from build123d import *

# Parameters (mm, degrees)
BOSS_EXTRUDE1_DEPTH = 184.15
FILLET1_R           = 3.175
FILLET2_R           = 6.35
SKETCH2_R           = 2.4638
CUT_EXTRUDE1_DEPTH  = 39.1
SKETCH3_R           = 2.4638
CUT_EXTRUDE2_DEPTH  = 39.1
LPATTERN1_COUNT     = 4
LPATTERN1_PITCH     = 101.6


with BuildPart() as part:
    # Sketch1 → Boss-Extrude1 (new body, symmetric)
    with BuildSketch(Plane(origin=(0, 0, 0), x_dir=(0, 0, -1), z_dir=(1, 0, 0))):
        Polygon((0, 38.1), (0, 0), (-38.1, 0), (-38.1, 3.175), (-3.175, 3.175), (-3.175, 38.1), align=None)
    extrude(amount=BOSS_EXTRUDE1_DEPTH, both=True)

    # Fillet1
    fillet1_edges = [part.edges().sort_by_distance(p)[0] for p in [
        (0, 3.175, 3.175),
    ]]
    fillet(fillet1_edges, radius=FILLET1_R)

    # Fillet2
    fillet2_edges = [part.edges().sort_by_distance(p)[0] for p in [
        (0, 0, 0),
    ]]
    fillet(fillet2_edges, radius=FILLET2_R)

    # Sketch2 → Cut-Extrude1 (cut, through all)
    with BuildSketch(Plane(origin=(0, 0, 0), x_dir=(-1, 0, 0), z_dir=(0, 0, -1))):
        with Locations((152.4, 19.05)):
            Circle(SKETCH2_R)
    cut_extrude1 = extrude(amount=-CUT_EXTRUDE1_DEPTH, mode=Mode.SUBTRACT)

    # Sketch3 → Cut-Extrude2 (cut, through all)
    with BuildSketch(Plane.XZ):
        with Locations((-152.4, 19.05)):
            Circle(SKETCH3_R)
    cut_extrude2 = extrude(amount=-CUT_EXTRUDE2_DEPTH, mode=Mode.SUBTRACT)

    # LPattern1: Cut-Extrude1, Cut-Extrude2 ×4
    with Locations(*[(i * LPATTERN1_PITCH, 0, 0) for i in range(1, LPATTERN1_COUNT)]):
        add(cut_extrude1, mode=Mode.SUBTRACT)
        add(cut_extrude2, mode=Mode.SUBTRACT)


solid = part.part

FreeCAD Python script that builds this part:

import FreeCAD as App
import Part
import Sketcher
Q = App.Units.Quantity


def edges_at(feature, points):
    """Names of the edges that pass closest to the given points."""
    edges = feature.Shape.Edges
    near = lambda p: min(range(len(edges)), key=lambda i: edges[i].distToShape(Part.Vertex(*p))[0])
    return sorted({f"Edge{near(p) + 1}" for p in points})

doc = App.newDocument("Part")
params = doc.addObject("Spreadsheet::Sheet", "Params")
for row, (alias, value) in enumerate([
    ("sketch1_width", "1.5 in"),
    ("sketch1_width2", "1.375 in"),
    ("pad1_length", "14.5 in"),
    ("fillet_radius", "0.125 in"),
    ("fillet2_radius", "0.25 in"),
    ("sketch2_diameter", "0.194 in"),
    ("sketch3_diameter", "0.194 in"),
    ("linearpattern_pitch", "4 in"),
], start=1):
    params.set(f"A{row}", alias)
    params.set(f"B{row}", "=" + value)
    params.setAlias(f"B{row}", alias)

body = doc.addObject("PartDesign::Body", "Body")

sketch1 = body.newObject("Sketcher::SketchObject", "Sketch")
sketch1.AttachmentSupport = (doc.getObject("YZ_Plane"), [""])
sketch1.MapMode = "FlatFace"
sketch1.addGeometry([
    Part.LineSegment(App.Vector(0, 0, 0), App.Vector(38.1, 0, 0)),
    Part.LineSegment(App.Vector(38.1, 0, 0), App.Vector(38.1, 3.2, 0)),
    Part.LineSegment(App.Vector(38.1, 3.2, 0), App.Vector(3.2, 3.2, 0)),
    Part.LineSegment(App.Vector(3.2, 3.2, 0), App.Vector(3.2, 38.1, 0)),
    Part.LineSegment(App.Vector(3.2, 38.1, 0), App.Vector(0, 38.1, 0)),
    Part.LineSegment(App.Vector(0, 38.1, 0), App.Vector(0, 0, 0)),
], False)
sketch1.addConstraint([
    Sketcher.Constraint("Coincident", 0, 2, 1, 1),
    Sketcher.Constraint("Coincident", 1, 2, 2, 1),
    Sketcher.Constraint("Coincident", 2, 2, 3, 1),
    Sketcher.Constraint("Coincident", 3, 2, 4, 1),
    Sketcher.Constraint("Coincident", 4, 2, 5, 1),
    Sketcher.Constraint("Coincident", 5, 2, 0, 1),
    Sketcher.Constraint("Horizontal", 0),
    Sketcher.Constraint("Vertical", 1),
    Sketcher.Constraint("Horizontal", 2),
    Sketcher.Constraint("Vertical", 3),
    Sketcher.Constraint("Horizontal", 4),
    Sketcher.Constraint("Vertical", 5),
    Sketcher.Constraint("Coincident", 5, 2, -1, 1),
    Sketcher.Constraint("Equal", 4, 1),
    Sketcher.Constraint("Equal", 2, 3),
    Sketcher.Constraint("DistanceX", 0, 1, 0, 2, Q("1.5 in")),
    Sketcher.Constraint("DistanceX", 2, 2, 2, 1, Q("1.375 in")),
])
sketch1.setExpression("Constraints[15]", "Params.sketch1_width")
sketch1.setExpression("Constraints[16]", "Params.sketch1_width2")
pad1 = body.newObject("PartDesign::Pad", "Pad")
pad1.Profile = sketch1
pad1.setExpression("Length", "Params.pad1_length")
pad1.Midplane = True
doc.recompute()

fillet = body.newObject("PartDesign::Fillet", "Fillet")
fillet.Base = (pad1, edges_at(pad1, [(0, 3.175, 3.175)]))
fillet.setExpression("Radius", "Params.fillet_radius")
doc.recompute()

fillet2 = body.newObject("PartDesign::Fillet", "Fillet001")
fillet2.Base = (fillet, edges_at(fillet, [(0, 0, 0)]))
fillet2.setExpression("Radius", "Params.fillet2_radius")

sketch2 = body.newObject("Sketcher::SketchObject", "Sketch001")
sketch2.AttachmentSupport = (doc.getObject("XY_Plane"), [""])
sketch2.MapMode = "FlatFace"
sketch2.addGeometry(Part.Circle(App.Vector(-152.4, 19.1, 0), App.Vector(0, 0, 1), 2.5), False)
sketch2.addConstraint([
    Sketcher.Constraint("Diameter", 0, Q("0.194 in")),
    Sketcher.Constraint("DistanceX", 0, 3, -1, 1, Q("6 in")),
    Sketcher.Constraint("DistanceY", -1, 1, 0, 3, Q("0.75 in")),
])
sketch2.setExpression("Constraints[0]", "Params.sketch2_diameter")
pocket1 = body.newObject("PartDesign::Pocket", "Pocket")
pocket1.Profile = sketch2
pocket1.Type = "ThroughAll"
pocket1.Reversed = True

sketch3 = body.newObject("Sketcher::SketchObject", "Sketch002")
sketch3.AttachmentSupport = (doc.getObject("XZ_Plane"), [""])
sketch3.MapMode = "FlatFace"
sketch3.addGeometry(Part.Circle(App.Vector(-152.4, 19.1, 0), App.Vector(0, 0, 1), 2.5), False)
sketch3.addConstraint([
    Sketcher.Constraint("Diameter", 0, Q("0.194 in")),
    Sketcher.Constraint("DistanceX", 0, 3, -1, 1, Q("6 in")),
    Sketcher.Constraint("DistanceY", -1, 1, 0, 3, Q("0.75 in")),
])
sketch3.setExpression("Constraints[0]", "Params.sketch3_diameter")
pocket2 = body.newObject("PartDesign::Pocket", "Pocket001")
pocket2.Profile = sketch3
pocket2.Type = "ThroughAll"
doc.recompute()

linearpattern = body.newObject("PartDesign::LinearPattern", "LinearPattern")
linearpattern.Originals = [pocket1, pocket2]
linearpattern.Direction = (doc.getObject("X_Axis"), [""])
linearpattern.Mode = "offset"
linearpattern.setExpression("Offset", "Params.linearpattern_pitch")
linearpattern.Occurrences = 4
body.Tip = linearpattern

doc.recompute()
